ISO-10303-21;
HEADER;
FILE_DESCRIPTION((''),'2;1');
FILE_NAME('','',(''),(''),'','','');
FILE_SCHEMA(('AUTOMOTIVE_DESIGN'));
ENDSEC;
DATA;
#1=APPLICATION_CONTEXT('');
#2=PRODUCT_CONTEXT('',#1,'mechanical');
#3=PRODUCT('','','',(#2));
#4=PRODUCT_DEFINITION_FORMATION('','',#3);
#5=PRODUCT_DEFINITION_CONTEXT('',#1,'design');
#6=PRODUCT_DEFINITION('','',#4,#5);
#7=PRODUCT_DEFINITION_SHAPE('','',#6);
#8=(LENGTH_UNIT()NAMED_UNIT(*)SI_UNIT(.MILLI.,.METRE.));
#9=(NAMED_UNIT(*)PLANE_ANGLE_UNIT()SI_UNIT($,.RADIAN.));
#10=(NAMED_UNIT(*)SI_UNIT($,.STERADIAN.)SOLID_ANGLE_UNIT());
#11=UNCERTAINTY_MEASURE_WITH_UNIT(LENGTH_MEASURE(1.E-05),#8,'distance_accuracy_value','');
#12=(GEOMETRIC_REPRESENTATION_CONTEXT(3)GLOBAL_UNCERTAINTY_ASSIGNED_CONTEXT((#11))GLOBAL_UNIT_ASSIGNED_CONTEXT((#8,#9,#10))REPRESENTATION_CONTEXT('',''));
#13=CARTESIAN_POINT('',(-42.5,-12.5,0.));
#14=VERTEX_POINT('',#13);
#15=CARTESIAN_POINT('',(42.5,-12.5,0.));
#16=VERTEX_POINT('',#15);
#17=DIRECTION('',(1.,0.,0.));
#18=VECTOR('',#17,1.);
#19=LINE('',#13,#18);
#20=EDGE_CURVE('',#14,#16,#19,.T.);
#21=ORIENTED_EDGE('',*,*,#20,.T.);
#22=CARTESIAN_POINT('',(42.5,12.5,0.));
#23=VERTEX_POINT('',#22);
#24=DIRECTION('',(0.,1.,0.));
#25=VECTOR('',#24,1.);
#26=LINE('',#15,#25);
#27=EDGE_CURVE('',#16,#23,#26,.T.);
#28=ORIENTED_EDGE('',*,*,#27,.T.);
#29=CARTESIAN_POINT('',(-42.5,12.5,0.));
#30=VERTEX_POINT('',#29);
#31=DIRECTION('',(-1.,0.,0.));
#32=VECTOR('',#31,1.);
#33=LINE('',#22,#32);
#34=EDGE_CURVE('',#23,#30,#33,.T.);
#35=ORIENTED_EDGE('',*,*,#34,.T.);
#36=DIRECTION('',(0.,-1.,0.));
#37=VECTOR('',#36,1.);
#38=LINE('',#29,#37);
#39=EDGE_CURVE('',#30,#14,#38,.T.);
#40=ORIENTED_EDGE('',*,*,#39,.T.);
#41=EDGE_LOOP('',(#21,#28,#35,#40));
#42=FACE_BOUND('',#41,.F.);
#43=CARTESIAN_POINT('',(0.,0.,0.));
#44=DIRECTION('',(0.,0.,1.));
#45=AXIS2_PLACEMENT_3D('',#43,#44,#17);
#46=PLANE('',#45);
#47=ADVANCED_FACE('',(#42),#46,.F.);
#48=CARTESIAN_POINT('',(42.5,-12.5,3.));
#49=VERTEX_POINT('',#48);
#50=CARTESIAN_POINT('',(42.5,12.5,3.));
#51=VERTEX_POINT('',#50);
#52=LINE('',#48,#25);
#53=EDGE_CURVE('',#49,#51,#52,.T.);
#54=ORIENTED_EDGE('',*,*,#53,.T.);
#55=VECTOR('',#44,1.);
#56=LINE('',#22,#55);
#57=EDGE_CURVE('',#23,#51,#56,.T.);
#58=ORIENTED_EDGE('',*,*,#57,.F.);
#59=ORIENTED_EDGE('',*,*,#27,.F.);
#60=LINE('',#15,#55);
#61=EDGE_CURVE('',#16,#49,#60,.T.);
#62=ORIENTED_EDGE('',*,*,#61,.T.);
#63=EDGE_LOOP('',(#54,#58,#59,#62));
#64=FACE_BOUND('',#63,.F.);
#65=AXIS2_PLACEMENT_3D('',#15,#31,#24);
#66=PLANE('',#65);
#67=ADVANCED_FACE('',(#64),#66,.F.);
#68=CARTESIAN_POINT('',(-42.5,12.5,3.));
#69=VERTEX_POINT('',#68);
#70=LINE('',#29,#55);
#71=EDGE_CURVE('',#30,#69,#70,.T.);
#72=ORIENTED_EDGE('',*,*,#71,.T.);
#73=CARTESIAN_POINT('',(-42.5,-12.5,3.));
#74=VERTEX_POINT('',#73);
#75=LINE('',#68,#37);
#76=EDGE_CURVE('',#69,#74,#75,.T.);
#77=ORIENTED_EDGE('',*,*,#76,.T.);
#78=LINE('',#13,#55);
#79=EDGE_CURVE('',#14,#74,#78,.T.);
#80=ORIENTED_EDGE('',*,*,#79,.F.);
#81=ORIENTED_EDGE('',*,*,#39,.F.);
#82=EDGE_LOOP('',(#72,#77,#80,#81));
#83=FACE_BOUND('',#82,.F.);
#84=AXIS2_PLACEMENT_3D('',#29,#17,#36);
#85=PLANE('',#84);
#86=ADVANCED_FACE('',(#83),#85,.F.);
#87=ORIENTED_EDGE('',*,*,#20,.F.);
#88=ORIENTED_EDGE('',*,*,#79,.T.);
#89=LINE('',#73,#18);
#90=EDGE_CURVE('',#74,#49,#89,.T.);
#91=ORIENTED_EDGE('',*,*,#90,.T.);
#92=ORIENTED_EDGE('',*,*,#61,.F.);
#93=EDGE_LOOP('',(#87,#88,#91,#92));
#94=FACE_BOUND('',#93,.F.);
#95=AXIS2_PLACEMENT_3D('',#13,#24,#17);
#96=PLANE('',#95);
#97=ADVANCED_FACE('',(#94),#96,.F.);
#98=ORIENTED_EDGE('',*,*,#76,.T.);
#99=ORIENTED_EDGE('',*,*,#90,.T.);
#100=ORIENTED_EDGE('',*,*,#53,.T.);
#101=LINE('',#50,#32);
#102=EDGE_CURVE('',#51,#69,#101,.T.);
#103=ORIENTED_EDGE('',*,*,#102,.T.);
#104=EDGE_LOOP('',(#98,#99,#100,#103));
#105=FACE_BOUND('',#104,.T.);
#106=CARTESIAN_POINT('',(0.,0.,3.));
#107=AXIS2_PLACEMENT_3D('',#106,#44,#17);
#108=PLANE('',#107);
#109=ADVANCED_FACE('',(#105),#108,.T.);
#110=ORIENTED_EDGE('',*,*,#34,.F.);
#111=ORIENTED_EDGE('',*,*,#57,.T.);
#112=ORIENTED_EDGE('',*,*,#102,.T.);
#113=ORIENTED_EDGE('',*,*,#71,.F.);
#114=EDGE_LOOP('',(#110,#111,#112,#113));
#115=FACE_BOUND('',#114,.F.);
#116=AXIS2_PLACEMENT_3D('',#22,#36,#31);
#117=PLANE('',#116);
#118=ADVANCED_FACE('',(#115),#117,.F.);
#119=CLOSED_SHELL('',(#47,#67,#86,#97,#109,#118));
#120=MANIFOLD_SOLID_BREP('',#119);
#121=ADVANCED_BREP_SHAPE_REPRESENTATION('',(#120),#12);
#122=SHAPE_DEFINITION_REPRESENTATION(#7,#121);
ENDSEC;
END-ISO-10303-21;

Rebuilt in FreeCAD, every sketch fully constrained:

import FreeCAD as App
import Part
import Sketcher

V = App.Vector
Q = App.Units.Quantity

doc = App.newDocument("Part")
body = doc.addObject("PartDesign::Body", "Body")

# Sketch on XY plane
sketch1 = body.newObject("Sketcher::SketchObject", "Sketch")
sketch1.AttachmentSupport = (doc.getObject("XY_Plane"), [""])
sketch1.MapMode = "FlatFace"
sketch1.addGeometry([
    Part.LineSegment(V(-42, 12, 0), V(-42, -12, 0)),
    Part.LineSegment(V(-42, -12, 0), V(42, -12, 0)),
    Part.LineSegment(V(42, -12, 0), V(42, 12, 0)),
    Part.LineSegment(V(42, 12, 0), V(-42, 12, 0)),
], False)
sketch1.addConstraint([
    Sketcher.Constraint("Coincident", 0, 2, 1, 1),
    Sketcher.Constraint("Coincident", 1, 2, 2, 1),
    Sketcher.Constraint("Coincident", 2, 2, 3, 1),
    Sketcher.Constraint("Coincident", 3, 2, 0, 1),
    Sketcher.Constraint("Vertical", 0),
    Sketcher.Constraint("Horizontal", 1),
    Sketcher.Constraint("Vertical", 2),
    Sketcher.Constraint("Horizontal", 3),
    Sketcher.Constraint("Symmetric", 0, 2, 2, 2, -1, 1),
    Sketcher.Constraint("DistanceX", 1, 1, 1, 2, Q("85 mm")),
    Sketcher.Constraint("DistanceY", 0, 2, 0, 1, Q("25 mm")),
])
pad1 = body.newObject("PartDesign::Pad", "Pad")
pad1.Profile = sketch1
pad1.Length = 3

doc.recompute()
